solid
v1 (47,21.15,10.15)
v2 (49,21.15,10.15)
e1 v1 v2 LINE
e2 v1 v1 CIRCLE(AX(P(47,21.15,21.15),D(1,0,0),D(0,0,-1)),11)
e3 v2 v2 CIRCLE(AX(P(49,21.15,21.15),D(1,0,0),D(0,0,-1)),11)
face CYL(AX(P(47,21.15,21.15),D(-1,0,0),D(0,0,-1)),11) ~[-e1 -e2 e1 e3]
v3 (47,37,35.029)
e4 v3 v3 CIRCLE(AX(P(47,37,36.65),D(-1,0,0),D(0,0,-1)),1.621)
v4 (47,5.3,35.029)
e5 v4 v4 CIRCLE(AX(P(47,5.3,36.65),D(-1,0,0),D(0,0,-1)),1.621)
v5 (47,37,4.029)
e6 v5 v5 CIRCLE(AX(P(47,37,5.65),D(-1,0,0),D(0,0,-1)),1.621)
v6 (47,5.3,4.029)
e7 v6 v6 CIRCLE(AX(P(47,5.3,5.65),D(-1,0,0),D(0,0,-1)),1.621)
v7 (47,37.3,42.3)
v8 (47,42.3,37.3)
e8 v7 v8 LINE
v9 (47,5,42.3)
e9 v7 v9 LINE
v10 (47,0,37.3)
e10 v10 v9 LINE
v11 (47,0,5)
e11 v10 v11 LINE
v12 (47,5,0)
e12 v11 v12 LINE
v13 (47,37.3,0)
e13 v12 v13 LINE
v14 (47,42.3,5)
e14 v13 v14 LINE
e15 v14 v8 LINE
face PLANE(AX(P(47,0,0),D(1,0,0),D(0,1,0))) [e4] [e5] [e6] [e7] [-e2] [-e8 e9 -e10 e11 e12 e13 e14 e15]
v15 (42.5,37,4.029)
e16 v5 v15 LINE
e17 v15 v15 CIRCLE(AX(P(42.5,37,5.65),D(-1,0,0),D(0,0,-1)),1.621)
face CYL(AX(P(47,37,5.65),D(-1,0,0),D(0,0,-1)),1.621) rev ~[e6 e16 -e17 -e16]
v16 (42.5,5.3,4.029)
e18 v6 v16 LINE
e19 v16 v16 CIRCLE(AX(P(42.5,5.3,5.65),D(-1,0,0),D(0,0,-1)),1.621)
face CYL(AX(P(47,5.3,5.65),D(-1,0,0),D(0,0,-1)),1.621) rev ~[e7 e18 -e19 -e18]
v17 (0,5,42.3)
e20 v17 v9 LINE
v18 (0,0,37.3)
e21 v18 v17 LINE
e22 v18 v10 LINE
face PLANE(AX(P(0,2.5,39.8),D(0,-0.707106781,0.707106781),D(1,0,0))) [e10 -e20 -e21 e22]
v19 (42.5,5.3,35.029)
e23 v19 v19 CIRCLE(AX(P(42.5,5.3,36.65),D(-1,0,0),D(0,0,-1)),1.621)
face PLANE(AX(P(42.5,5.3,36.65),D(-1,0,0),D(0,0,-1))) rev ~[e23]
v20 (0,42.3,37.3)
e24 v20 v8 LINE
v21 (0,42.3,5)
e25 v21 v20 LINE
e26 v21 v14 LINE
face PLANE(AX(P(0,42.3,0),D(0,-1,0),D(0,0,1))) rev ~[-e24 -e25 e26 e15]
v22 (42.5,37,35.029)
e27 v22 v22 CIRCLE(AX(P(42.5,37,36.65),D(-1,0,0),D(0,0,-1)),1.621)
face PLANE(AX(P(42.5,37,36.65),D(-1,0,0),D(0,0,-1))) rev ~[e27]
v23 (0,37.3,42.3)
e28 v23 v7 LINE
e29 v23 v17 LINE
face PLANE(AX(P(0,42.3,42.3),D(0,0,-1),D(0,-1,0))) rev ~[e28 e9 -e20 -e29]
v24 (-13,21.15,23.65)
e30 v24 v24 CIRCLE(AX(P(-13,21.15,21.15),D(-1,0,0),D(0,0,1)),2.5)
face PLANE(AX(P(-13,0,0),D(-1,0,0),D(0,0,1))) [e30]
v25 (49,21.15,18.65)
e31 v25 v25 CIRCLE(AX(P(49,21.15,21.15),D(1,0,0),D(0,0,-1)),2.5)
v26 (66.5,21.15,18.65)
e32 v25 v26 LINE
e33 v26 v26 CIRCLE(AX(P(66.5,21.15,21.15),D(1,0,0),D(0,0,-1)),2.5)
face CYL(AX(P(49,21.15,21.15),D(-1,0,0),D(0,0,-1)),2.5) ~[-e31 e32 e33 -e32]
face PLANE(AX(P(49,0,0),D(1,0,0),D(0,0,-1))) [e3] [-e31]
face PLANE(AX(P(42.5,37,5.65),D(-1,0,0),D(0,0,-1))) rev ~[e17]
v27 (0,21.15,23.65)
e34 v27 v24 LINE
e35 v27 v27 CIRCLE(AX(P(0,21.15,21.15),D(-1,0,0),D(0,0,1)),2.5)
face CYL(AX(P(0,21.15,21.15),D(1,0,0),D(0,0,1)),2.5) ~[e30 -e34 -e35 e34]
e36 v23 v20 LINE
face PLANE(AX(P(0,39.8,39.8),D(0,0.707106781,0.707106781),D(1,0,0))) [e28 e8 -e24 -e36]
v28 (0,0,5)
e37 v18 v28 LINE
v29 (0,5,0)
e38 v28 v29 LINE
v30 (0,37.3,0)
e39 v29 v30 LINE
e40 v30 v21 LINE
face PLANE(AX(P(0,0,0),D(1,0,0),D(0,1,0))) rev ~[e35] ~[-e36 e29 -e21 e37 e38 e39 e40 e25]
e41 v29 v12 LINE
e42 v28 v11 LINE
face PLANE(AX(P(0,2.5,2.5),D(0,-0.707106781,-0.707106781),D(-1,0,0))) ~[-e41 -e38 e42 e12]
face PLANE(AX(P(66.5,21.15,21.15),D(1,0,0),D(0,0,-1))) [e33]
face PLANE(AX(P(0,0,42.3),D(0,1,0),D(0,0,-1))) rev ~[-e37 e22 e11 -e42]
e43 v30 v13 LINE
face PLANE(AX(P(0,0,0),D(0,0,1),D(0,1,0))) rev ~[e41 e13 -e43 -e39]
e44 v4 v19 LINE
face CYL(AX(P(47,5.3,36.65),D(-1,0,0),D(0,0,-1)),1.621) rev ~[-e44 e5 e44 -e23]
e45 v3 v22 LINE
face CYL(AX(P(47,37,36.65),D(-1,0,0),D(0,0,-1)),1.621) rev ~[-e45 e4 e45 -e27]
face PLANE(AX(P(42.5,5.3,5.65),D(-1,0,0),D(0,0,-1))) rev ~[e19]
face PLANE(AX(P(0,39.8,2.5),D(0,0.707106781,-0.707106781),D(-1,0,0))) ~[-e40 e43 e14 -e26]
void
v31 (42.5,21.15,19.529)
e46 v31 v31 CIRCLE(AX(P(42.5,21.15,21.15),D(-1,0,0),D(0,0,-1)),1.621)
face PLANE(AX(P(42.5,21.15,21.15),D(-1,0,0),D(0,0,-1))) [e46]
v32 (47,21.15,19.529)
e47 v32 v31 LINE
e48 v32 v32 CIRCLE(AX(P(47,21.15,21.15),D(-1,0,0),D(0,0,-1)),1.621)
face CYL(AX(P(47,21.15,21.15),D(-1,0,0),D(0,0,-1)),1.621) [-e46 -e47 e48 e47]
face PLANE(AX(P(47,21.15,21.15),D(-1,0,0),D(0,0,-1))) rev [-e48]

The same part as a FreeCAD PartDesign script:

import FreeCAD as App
import Part
import Sketcher

V = App.Vector
Q = App.Units.Quantity


def edges_at(feature, points):
    """Names of the edges that pass closest to the given points."""
    edges = feature.Shape.Edges
    near = lambda p: min(range(len(edges)), key=lambda i: edges[i].distToShape(Part.Vertex(*p))[0])
    return sorted({f"Edge{near(p) + 1}" for p in points})


def add_polygon(sketch, points):
    """Adds a closed chain of lines whose ends are joined by coincident constraints."""
    first, n = sketch.GeometryCount, len(points)
    for a, b in zip(points, points[1:] + points[:1]):
        sketch.addGeometry(Part.LineSegment(App.Vector(*a, 0), App.Vector(*b, 0)), False)
    for i in range(n):
        sketch.addConstraint(Sketcher.Constraint("Coincident", first + i, 2, first + (i + 1) % n, 1))

doc = App.newDocument("Part")
body = doc.addObject("PartDesign::Body", "Body")

# Sketch on YZ plane
sketch1 = doc.addObject("Sketcher::SketchObject", "Sketch")
body.addObject(sketch1)
sketch1.AttachmentSupport = (doc.YZ_Plane, [""])
sketch1.MapMode = "FlatFace"
add_polygon(sketch1, [(0, 42), (0, 0), (42, 0), (42, 42)])  # lines 0-3
sketch1.addConstraint([
    Sketcher.Constraint("Vertical", 0),
    Sketcher.Constraint("Horizontal", 1),
    Sketcher.Constraint("Vertical", 2),
    Sketcher.Constraint("Horizontal", 3),
    Sketcher.Constraint("Coincident", 0, 2, -1, 1),
    Sketcher.Constraint("Equal", 3, 0),
    Sketcher.Constraint("DistanceX", 1, 1, 1, 2, Q("42.3 mm")),
])
pad1 = doc.addObject("PartDesign::Pad", "Pad")
body.addObject(pad1)
pad1.Profile = sketch1
pad1.Length = 47

# Sketch on YZ plane
sketch2 = doc.addObject("Sketcher::SketchObject", "Sketch001")
body.addObject(sketch2)
sketch2.AttachmentSupport = (doc.YZ_Plane, [""])
sketch2.MapMode = "FlatFace"
sketch2.AttachmentOffset = App.Placement(V(0, 0, 47), App.Rotation())
sketch2.addGeometry(Part.Circle(V(21, 21, 0), V(0, 0, 1), 11), False)
sketch2.addConstraint([
    Sketcher.Constraint("Diameter", 0, Q("22 mm")),
    Sketcher.Constraint("DistanceX", -1, 1, 0, 3, Q("21.15 mm")),
    Sketcher.Constraint("DistanceY", -1, 1, 0, 3, Q("21.15 mm")),
])
pad2 = doc.addObject("PartDesign::Pad", "Pad001")
body.addObject(pad2)
pad2.Profile = sketch2
pad2.Length = 2

# Sketch on YZ plane
sketch3 = doc.addObject("Sketcher::SketchObject", "Sketch002")
body.addObject(sketch3)
sketch3.AttachmentSupport = (doc.YZ_Plane, [""])
sketch3.MapMode = "FlatFace"
sketch3.AttachmentOffset = App.Placement(V(0, 0, 47), App.Rotation())
sketch3.addGeometry([
    Part.Circle(V(21.1, 21.1, 0), V(0, 0, 1), 1.6),  # 0
    Part.Circle(V(37, 36.6, 0), V(0, 0, 1), 1.6),  # 1
    Part.Circle(V(37, 5.7, 0), V(0, 0, 1), 1.6),  # 2
    Part.Circle(V(5.3, 5.7, 0), V(0, 0, 1), 1.6),  # 3
    Part.Circle(V(5.3, 36.6, 0), V(0, 0, 1), 1.6),  # 4
], False)
sketch3.addConstraint([
    Sketcher.Constraint("Equal", 0, 1),
    Sketcher.Constraint("Equal", 1, 2),
    Sketcher.Constraint("Equal", 2, 3),
    Sketcher.Constraint("Equal", 3, 4),
    Sketcher.Constraint("Horizontal", 2, 3, 3, 3),
    Sketcher.Constraint("Horizontal", 1, 3, 4, 3),
    Sketcher.Constraint("Vertical", 1, 3, 2, 3),
    Sketcher.Constraint("Vertical", 3, 3, 4, 3),
    Sketcher.Constraint("Diameter", 0, Q("3.242 mm")),
    Sketcher.Constraint("DistanceX", -1, 1, 1, 3, Q("37 mm")),
    Sketcher.Constraint("DistanceY", 2, 3, 1, 3, Q("31 mm")),
    Sketcher.Constraint("DistanceX", -1, 1, 3, 3, Q("5.3 mm")),
    Sketcher.Constraint("DistanceY", 0, 3, 1, 3, Q("15.5 mm")),
    Sketcher.Constraint("DistanceX", -1, 1, 0, 3, Q("21.15 mm")),
    Sketcher.Constraint("DistanceY", -1, 1, 0, 3, Q("21.15 mm")),
])
doc.recompute()
hole = doc.addObject("PartDesign::Hole", "Hole")
body.addObject(hole)
hole.Profile = sketch3
hole.ThreadType = "None"
hole.Diameter = 3.242
hole.DepthType = "Dimension"
hole.Depth = 4.5
hole.DrillPoint = "Flat"
doc.recompute()

chamfer = doc.addObject("PartDesign::Chamfer", "Chamfer")
body.addObject(chamfer)
chamfer.Base = (hole, edges_at(hole, [
    (23.5, 42.3, 42.3),
    (23.5, 42.3, 0),
    (23.5, 0, 42.3),
    (23.5, 0, 0),
]))
chamfer.Size = 5

# Sketch on YZ plane
sketch4 = doc.addObject("Sketcher::SketchObject", "Sketch003")
body.addObject(sketch4)
sketch4.AttachmentSupport = (doc.YZ_Plane, [""])
sketch4.MapMode = "FlatFace"
sketch4.AttachmentOffset = App.Placement(V(0, 0, 49), App.Rotation())
sketch4.addGeometry(Part.Circle(V(21.1, 21.1, 0), V(0, 0, 1), 2.5), False)
sketch4.addConstraint([
    Sketcher.Constraint("Diameter", 0, Q("5 mm")),
    Sketcher.Constraint("DistanceX", -1, 1, 0, 3, Q("21.15 mm")),
    Sketcher.Constraint("DistanceY", -1, 1, 0, 3, Q("21.15 mm")),
])
pad3 = doc.addObject("PartDesign::Pad", "Pad002")
body.addObject(pad3)
pad3.Profile = sketch4
pad3.Length = 17.5

# Sketch on YZ plane
sketch5 = doc.addObject("Sketcher::SketchObject", "Sketch004")
body.addObject(sketch5)
sketch5.AttachmentSupport = (doc.YZ_Plane, [""])
sketch5.MapMode = "FlatFace"
sketch5.addGeometry(Part.Circle(V(21.1, 21.1, 0), V(0, 0, 1), 2.5), False)
sketch5.addConstraint([
    Sketcher.Constraint("Diameter", 0, Q("5 mm")),
    Sketcher.Constraint("DistanceX", -1, 1, 0, 3, Q("21.15 mm")),
    Sketcher.Constraint("DistanceY", -1, 1, 0, 3, Q("21.15 mm")),
])
pad4 = doc.addObject("PartDesign::Pad", "Pad003")
body.addObject(pad4)
pad4.Profile = sketch5
pad4.Length = 13
pad4.Reversed = True

doc.recompute()
